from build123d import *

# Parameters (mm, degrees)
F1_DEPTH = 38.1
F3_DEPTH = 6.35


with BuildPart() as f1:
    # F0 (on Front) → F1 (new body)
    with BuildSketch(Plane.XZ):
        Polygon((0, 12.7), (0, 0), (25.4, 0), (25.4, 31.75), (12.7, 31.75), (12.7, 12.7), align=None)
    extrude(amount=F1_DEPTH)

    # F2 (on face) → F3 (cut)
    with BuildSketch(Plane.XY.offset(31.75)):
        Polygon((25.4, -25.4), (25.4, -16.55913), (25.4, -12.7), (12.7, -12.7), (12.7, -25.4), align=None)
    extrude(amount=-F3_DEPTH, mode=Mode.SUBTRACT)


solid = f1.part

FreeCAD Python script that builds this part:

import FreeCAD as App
import Part
import Sketcher

V = App.Vector
Q = App.Units.Quantity

doc = App.newDocument("Part")
params = doc.addObject("Spreadsheet::Sheet", "Params")
for row, (alias, value) in enumerate([
    ("sketch1_width", "1 in"),
    ("sketch1_height", "1.25 in"),
    ("pad1_length", "1.5 in"),
    ("sketch2_width", "0.5 in"),
    ("pocket1_length", "0.25 in"),
], start=1):
    params.set(f"A{row}", alias)
    params.set(f"B{row}", "=" + value)
    params.setAlias(f"B{row}", alias)

body = doc.addObject("PartDesign::Body", "Body")

sketch1 = body.newObject("Sketcher::SketchObject", "Sketch")
sketch1.AttachmentSupport = (doc.getObject("XZ_Plane"), [""])
sketch1.MapMode = "FlatFace"
sketch1.addGeometry([
    Part.LineSegment(V(0, 13, 0), V(0, 0, 0)),
    Part.LineSegment(V(0, 0, 0), V(25, 0, 0)),
    Part.LineSegment(V(25, 0, 0), V(25, 32, 0)),
    Part.LineSegment(V(25, 32, 0), V(13, 32, 0)),
    Part.LineSegment(V(13, 32, 0), V(13, 13, 0)),
    Part.LineSegment(V(13, 13, 0), V(0, 13, 0)),
], False)
sketch1.addConstraint([
    Sketcher.Constraint("Coincident", 0, 2, 1, 1),
    Sketcher.Constraint("Coincident", 1, 2, 2, 1),
    Sketcher.Constraint("Coincident", 2, 2, 3, 1),
    Sketcher.Constraint("Coincident", 3, 2, 4, 1),
    Sketcher.Constraint("Coincident", 4, 2, 5, 1),
    Sketcher.Constraint("Coincident", 5, 2, 0, 1),
    Sketcher.Constraint("Vertical", 0),
    Sketcher.Constraint("Horizontal", 1),
    Sketcher.Constraint("Vertical", 2),
    Sketcher.Constraint("Horizontal", 3),
    Sketcher.Constraint("Vertical", 4),
    Sketcher.Constraint("Horizontal", 5),
    Sketcher.Constraint("Coincident", 0, 2, -1, 1),
    Sketcher.Constraint("Equal", 3, 5),
    Sketcher.Constraint("Equal", 5, 0),
    Sketcher.Constraint("DistanceX", 1, 1, 1, 2, Q("1 in")),
    Sketcher.Constraint("DistanceY", 2, 1, 2, 2, Q("1.25 in")),
])
sketch1.setExpression("Constraints[15]", "Params.sketch1_width")
sketch1.setExpression("Constraints[16]", "Params.sketch1_height")
pad1 = body.newObject("PartDesign::Pad", "Pad")
pad1.Profile = sketch1
pad1.setExpression("Length", "Params.pad1_length")

sketch2 = body.newObject("Sketcher::SketchObject", "Sketch001")
sketch2.AttachmentSupport = (doc.getObject("XY_Plane"), [""])
sketch2.MapMode = "FlatFace"
sketch2.AttachmentOffset = App.Placement(V(0, 0, 1.25 * 25.4), App.Rotation())
sketch2.addGeometry([
    Part.LineSegment(V(25, -25, 0), V(25, -13, 0)),
    Part.LineSegment(V(25, -13, 0), V(13, -13, 0)),
    Part.LineSegment(V(13, -13, 0), V(13, -25, 0)),
    Part.LineSegment(V(13, -25, 0), V(25, -25, 0)),
], False)
sketch2.addConstraint([
    Sketcher.Constraint("Coincident", 0, 2, 1, 1),
    Sketcher.Constraint("Coincident", 1, 2, 2, 1),
    Sketcher.Constraint("Coincident", 2, 2, 3, 1),
    Sketcher.Constraint("Coincident", 3, 2, 0, 1),
    Sketcher.Constraint("Vertical", 0),
    Sketcher.Constraint("Horizontal", 1),
    Sketcher.Constraint("Vertical", 2),
    Sketcher.Constraint("Horizontal", 3),
    Sketcher.Constraint("Equal", 3, 0),
    Sketcher.Constraint("DistanceX", 1, 2, 1, 1, Q("0.5 in")),
    Sketcher.Constraint("DistanceX", -1, 1, 0, 2, Q("1 in")),
    Sketcher.Constraint("DistanceY", 2, 2, -1, 1, Q("1 in")),
])
sketch2.setExpression("Constraints[9]", "Params.sketch2_width")
pocket1 = body.newObject("PartDesign::Pocket", "Pocket")
pocket1.Profile = sketch2
pocket1.setExpression("Length", "Params.pocket1_length")

doc.recompute()
